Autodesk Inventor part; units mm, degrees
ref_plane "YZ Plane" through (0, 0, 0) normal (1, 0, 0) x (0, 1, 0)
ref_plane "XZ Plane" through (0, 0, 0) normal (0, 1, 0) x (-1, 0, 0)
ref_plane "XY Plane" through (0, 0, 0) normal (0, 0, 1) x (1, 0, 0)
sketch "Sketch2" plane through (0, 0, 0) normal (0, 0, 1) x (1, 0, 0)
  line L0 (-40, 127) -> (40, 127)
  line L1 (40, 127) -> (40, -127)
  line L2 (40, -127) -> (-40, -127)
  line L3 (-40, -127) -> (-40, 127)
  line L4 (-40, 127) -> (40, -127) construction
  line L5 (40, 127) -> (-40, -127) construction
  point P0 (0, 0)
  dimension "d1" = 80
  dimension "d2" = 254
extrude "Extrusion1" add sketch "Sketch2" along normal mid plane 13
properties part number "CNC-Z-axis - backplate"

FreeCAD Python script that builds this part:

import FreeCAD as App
import Part
import Sketcher

V = App.Vector
Q = App.Units.Quantity

doc = App.newDocument("Part")
body = doc.addObject("PartDesign::Body", "Body")

# Sketch on XY plane
sketch1 = body.newObject("Sketcher::SketchObject", "Sketch")
sketch1.AttachmentSupport = (doc.getObject("XY_Plane"), [""])
sketch1.MapMode = "FlatFace"
sketch1.addGeometry(Part.LineSegment(V(40, 127, 0), V(-40, 127, 0)), False)
sketch1.addGeometry(Part.LineSegment(V(-40, 127, 0), V(-40, -127, 0)), False)
sketch1.addGeometry(Part.LineSegment(V(-40, -127, 0), V(40, -127, 0)), False)
sketch1.addGeometry(Part.LineSegment(V(40, -127, 0), V(40, 127, 0)), False)
sketch1.addConstraint(Sketcher.Constraint("Coincident", 0, 2, 1, 1))
sketch1.addConstraint(Sketcher.Constraint("Coincident", 1, 2, 2, 1))
sketch1.addConstraint(Sketcher.Constraint("Coincident", 2, 2, 3, 1))
sketch1.addConstraint(Sketcher.Constraint("Coincident", 3, 2, 0, 1))
sketch1.addConstraint(Sketcher.Constraint("Horizontal", 0))
sketch1.addConstraint(Sketcher.Constraint("Vertical", 1))
sketch1.addConstraint(Sketcher.Constraint("Horizontal", 2))
sketch1.addConstraint(Sketcher.Constraint("Vertical", 3))
sketch1.addConstraint(Sketcher.Constraint("Symmetric", 0, 2, 2, 2, -1, 1))
sketch1.addConstraint(Sketcher.Constraint("DistanceY", 1, 2, 1, 1, Q("10 in")))
sketch1.addConstraint(Sketcher.Constraint("DistanceX", 0, 2, 0, 1, Q("3.1496 in")))
pad1 = body.newObject("PartDesign::Pad", "Pad")
pad1.Profile = sketch1
pad1.Length = Q("0.511811 in")
pad1.Midplane = True

doc.recompute()
